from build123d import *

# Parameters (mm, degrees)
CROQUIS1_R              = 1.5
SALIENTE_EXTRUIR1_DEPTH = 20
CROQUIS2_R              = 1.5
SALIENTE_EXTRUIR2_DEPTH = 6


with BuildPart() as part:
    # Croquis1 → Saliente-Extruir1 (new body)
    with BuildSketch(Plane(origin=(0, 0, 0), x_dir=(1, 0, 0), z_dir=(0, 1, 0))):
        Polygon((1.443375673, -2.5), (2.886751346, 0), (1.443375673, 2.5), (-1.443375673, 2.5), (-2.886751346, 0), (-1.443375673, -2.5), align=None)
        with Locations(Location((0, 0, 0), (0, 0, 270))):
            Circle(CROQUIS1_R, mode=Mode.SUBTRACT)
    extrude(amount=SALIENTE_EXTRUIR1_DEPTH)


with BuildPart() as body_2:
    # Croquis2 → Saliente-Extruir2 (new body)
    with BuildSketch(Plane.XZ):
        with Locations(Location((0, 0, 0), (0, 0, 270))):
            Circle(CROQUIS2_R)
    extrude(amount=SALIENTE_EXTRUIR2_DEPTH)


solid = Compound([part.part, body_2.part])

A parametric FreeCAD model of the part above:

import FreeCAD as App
import Part
import Sketcher
Q = App.Units.Quantity


def add_polygon(sketch, points):
    """Adds a closed chain of lines whose ends are joined by coincident constraints."""
    first, n = sketch.GeometryCount, len(points)
    for a, b in zip(points, points[1:] + points[:1]):
        sketch.addGeometry(Part.LineSegment(App.Vector(*a, 0), App.Vector(*b, 0)), False)
    for i in range(n):
        sketch.addConstraint(Sketcher.Constraint("Coincident", first + i, 2, first + (i + 1) % n, 1))

doc = App.newDocument("Part")
body = doc.addObject("PartDesign::Body", "Body")

# Sketch on XZ plane
sketch1 = body.newObject("Sketcher::SketchObject", "Sketch")
sketch1.AttachmentSupport = (doc.getObject("XZ_Plane"), [""])
sketch1.MapMode = "FlatFace"
add_polygon(sketch1, [(1.4, 2.5), (2.9, 0), (1.4, -2.5), (-1.4, -2.5), (-2.9, 0), (-1.4, 2.5)])  # lines 0-5
sketch1.addGeometry(Part.Circle(App.Vector(0, 0, 0), App.Vector(0, 0, 1), 1.5), False)  # 6
sketch1.addConstraint([
    Sketcher.Constraint("Horizontal", 2),
    Sketcher.Constraint("Horizontal", 5),
    Sketcher.Constraint("Coincident", 6, 3, -1, 1),
    Sketcher.Constraint("Symmetric", 0, 2, 3, 2, -1, 1),
    Sketcher.Constraint("Symmetric", 1, 2, 4, 2, -1, 1),
    Sketcher.Constraint("PointOnObject", 0, 2, -1),
    Sketcher.Constraint("Parallel", 0, 3),
    Sketcher.Constraint("Vertical", 2, 2, 4, 2),
    Sketcher.Constraint("Diameter", 6, Q("3 mm")),
    Sketcher.Constraint("Angle", 0, Q("-60 deg")),
    Sketcher.Constraint("DistanceY", 2, 2, 4, 2, Q("5 mm")),
    Sketcher.Constraint("DistanceX", 2, 2, 2, 1, Q("2.886751 mm")),
])
pad1 = body.newObject("PartDesign::Pad", "Pad")
pad1.Profile = sketch1
pad1.Length = 20
pad1.Reversed = True
body2 = doc.addObject("PartDesign::Body", "Body001")

# Sketch on XZ plane
sketch2 = body2.newObject("Sketcher::SketchObject", "Sketch001")
sketch2.AttachmentSupport = (doc.getObject("XZ_Plane001"), [""])
sketch2.MapMode = "FlatFace"
sketch2.addGeometry(Part.Circle(App.Vector(0, 0, 0), App.Vector(0, 0, 1), 1.5), False)
sketch2.addConstraint([
    Sketcher.Constraint("Coincident", 0, 3, -1, 1),
    Sketcher.Constraint("Diameter", 0, Q("3 mm")),
])
pad2 = body2.newObject("PartDesign::Pad", "Pad001")
pad2.Profile = sketch2
pad2.Length = 6

doc.recompute()
